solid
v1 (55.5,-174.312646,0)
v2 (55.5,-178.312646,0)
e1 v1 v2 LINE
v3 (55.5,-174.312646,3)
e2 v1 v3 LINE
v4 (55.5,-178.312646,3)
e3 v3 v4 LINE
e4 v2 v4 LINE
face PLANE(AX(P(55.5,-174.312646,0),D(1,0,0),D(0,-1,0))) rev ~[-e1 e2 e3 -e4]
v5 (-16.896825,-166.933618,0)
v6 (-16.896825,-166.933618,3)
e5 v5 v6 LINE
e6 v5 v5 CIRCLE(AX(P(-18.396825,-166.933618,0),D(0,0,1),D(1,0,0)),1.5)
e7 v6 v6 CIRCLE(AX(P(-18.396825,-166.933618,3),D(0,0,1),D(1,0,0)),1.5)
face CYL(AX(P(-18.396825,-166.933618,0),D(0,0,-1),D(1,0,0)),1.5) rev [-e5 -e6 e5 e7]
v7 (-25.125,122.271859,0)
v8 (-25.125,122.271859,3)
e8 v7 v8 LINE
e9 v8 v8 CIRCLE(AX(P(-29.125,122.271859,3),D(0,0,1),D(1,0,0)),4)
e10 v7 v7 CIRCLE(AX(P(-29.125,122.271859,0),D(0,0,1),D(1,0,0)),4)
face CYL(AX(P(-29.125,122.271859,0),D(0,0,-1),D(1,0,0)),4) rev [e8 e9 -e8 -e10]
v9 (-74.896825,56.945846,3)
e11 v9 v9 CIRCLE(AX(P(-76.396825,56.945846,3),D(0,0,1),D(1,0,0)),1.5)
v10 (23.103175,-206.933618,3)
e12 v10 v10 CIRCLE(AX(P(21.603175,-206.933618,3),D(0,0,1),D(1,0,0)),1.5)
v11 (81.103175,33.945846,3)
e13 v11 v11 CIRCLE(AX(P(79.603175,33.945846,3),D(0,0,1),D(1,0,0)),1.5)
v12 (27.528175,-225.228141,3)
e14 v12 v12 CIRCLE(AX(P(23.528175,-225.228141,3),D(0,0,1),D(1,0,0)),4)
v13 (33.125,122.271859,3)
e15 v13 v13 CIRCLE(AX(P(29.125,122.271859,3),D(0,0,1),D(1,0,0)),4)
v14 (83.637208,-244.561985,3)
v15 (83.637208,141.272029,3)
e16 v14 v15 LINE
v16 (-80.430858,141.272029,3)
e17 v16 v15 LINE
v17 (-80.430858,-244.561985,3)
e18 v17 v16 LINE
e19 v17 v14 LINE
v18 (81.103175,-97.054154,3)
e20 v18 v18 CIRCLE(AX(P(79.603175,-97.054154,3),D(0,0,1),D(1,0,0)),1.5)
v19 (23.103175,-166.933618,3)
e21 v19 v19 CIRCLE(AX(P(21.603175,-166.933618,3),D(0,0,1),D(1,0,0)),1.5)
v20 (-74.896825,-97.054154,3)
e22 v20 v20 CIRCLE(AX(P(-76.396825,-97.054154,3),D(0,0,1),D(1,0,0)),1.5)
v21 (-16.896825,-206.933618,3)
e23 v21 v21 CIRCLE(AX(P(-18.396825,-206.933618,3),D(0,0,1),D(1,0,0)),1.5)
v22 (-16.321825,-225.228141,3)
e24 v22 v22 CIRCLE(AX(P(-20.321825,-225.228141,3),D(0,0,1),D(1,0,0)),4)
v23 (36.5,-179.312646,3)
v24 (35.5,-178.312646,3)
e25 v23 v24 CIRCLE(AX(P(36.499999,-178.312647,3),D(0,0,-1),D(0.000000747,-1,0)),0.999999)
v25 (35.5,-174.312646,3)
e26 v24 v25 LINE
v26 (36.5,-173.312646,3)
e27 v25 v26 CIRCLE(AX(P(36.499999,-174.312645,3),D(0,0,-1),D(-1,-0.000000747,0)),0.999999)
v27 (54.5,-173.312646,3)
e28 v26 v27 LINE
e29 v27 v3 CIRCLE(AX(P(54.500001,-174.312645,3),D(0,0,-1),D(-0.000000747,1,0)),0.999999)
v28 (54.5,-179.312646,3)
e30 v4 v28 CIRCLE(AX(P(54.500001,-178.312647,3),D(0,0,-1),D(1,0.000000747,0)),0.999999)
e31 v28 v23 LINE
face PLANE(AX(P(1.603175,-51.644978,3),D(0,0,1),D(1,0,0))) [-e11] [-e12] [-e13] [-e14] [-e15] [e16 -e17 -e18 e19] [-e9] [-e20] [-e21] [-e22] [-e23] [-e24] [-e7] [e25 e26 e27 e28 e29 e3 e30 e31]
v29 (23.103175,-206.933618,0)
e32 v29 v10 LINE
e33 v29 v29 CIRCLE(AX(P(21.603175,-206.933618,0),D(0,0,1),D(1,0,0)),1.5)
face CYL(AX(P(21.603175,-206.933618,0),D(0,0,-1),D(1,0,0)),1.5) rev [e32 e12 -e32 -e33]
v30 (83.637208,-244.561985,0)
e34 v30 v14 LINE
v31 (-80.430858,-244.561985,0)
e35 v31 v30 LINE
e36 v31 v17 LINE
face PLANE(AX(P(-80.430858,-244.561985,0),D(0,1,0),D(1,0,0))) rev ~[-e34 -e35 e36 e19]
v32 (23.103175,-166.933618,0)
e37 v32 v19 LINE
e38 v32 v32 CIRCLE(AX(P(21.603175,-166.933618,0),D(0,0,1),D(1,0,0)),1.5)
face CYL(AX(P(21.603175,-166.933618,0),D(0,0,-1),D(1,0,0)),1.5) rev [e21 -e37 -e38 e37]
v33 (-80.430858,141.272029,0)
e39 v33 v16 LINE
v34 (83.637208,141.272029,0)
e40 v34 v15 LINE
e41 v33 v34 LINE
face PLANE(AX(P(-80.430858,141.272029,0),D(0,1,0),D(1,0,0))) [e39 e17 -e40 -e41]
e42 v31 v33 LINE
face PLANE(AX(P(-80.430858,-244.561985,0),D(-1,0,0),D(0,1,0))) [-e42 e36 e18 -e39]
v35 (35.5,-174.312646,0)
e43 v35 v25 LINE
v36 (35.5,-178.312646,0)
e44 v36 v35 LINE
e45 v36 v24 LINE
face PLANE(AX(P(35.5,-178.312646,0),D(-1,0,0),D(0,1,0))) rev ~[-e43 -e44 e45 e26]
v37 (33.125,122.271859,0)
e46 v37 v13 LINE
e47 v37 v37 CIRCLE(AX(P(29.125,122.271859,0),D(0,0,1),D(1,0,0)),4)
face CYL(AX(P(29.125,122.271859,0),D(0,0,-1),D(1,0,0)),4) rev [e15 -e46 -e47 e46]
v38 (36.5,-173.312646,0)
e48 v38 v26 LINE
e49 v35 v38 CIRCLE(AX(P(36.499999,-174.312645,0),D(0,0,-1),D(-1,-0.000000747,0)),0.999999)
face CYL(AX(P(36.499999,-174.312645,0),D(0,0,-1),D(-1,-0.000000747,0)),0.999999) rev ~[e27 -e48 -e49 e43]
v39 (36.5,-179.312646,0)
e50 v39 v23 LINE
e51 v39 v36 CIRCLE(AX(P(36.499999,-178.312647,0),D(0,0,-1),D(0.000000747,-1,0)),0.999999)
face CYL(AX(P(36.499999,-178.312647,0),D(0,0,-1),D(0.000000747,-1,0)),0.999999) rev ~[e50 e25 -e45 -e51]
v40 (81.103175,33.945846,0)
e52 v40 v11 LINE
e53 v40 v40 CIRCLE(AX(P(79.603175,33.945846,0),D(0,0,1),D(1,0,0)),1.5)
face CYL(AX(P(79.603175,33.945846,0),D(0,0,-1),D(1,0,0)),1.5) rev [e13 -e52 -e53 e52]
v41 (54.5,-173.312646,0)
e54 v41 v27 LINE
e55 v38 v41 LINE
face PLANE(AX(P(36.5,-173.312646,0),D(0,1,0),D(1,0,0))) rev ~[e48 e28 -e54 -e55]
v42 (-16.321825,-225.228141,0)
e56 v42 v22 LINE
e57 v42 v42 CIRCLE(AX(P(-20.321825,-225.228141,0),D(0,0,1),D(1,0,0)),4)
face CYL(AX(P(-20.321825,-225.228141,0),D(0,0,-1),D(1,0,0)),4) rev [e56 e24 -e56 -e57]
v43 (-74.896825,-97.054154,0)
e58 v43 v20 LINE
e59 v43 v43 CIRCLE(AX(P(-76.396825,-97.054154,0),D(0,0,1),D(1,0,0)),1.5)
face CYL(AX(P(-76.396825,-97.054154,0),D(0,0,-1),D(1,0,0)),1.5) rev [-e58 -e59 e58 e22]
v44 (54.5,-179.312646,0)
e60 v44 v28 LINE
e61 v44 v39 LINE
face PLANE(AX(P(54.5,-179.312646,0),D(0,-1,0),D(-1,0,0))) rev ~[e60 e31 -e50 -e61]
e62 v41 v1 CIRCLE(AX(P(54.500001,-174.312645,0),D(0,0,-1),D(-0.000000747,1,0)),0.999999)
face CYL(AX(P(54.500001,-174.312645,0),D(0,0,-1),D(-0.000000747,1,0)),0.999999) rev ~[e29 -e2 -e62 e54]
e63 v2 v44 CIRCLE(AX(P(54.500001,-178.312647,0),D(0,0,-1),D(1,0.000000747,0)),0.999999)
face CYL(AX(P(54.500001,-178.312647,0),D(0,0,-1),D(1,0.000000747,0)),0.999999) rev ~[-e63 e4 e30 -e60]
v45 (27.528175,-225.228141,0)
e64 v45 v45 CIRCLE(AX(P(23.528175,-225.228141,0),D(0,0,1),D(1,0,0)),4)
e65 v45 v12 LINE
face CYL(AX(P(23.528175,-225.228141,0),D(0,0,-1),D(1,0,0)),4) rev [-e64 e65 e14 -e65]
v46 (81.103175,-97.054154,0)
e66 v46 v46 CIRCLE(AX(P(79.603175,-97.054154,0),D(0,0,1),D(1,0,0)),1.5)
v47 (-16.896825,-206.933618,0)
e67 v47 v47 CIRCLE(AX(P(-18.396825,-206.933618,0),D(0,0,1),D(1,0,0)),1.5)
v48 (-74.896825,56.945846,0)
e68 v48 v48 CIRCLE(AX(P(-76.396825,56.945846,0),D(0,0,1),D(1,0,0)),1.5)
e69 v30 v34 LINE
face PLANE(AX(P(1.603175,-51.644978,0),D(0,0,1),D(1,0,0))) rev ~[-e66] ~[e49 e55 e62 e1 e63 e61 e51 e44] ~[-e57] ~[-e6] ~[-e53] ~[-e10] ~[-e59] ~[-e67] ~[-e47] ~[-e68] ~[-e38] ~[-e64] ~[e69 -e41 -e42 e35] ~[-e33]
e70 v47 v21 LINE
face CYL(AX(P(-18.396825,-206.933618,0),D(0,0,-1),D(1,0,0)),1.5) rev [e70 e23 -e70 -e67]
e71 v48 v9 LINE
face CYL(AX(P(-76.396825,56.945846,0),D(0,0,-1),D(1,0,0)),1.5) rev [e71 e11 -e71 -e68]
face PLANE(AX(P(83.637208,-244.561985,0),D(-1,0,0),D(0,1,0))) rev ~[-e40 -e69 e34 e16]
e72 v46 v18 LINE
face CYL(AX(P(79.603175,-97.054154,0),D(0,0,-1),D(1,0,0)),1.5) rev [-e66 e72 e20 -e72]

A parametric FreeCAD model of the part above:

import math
import FreeCAD as App
import Part
import Sketcher
Q = App.Units.Quantity

doc = App.newDocument("Part")
body = doc.addObject("PartDesign::Body", "Body")

# Sketch on XY plane
sketch1 = doc.addObject("Sketcher::SketchObject", "Sketch")
body.addObject(sketch1)
sketch1.AttachmentSupport = (doc.XY_Plane, [""])
sketch1.MapMode = "FlatFace"
sketch1.addGeometry([
    Part.LineSegment(App.Vector(-80.4, 141.3, 0), App.Vector(-80.4, -244.6, 0)),  # 0
    Part.LineSegment(App.Vector(-80.4, -244.6, 0), App.Vector(83.6, -244.6, 0)),  # 1
    Part.LineSegment(App.Vector(83.6, -244.6, 0), App.Vector(83.6, 141.3, 0)),  # 2
    Part.LineSegment(App.Vector(83.6, 141.3, 0), App.Vector(-80.4, 141.3, 0)),  # 3
    Part.Circle(App.Vector(-20.3, -225.2, 0), App.Vector(0, 0, 1), 4),  # 4
    Part.Circle(App.Vector(-18.4, -206.9, 0), App.Vector(0, 0, 1), 1.5),  # 5
    Part.Circle(App.Vector(-18.4, -166.9, 0), App.Vector(0, 0, 1), 1.5),  # 6
    Part.Circle(App.Vector(-76.4, -97.1, 0), App.Vector(0, 0, 1), 1.5),  # 7
    Part.Circle(App.Vector(23.5, -225.2, 0), App.Vector(0, 0, 1), 4),  # 8
    Part.Circle(App.Vector(21.6, -206.9, 0), App.Vector(0, 0, 1), 1.5),  # 9
    Part.Circle(App.Vector(21.6, -166.9, 0), App.Vector(0, 0, 1), 1.5),  # 10
    Part.ArcOfCircle(Part.Circle(App.Vector(36.5, -174.3, 0), App.Vector(0, 0, 1), 1), math.radians(90), math.radians(180)),  # 11
    Part.LineSegment(App.Vector(36.5, -173.3, 0), App.Vector(54.5, -173.3, 0)),  # 12
    Part.ArcOfCircle(Part.Circle(App.Vector(54.5, -174.3, 0), App.Vector(0, 0, 1), 1), math.radians(0), math.radians(90)),  # 13
    Part.LineSegment(App.Vector(55.5, -174.3, 0), App.Vector(55.5, -178.3, 0)),  # 14
    Part.ArcOfCircle(Part.Circle(App.Vector(54.5, -178.3, 0), App.Vector(0, 0, 1), 1), math.radians(-90), math.radians(0)),  # 15
    Part.LineSegment(App.Vector(54.5, -179.3, 0), App.Vector(36.5, -179.3, 0)),  # 16
    Part.ArcOfCircle(Part.Circle(App.Vector(36.5, -178.3, 0), App.Vector(0, 0, 1), 1), math.radians(180), math.radians(270)),  # 17
    Part.LineSegment(App.Vector(35.5, -178.3, 0), App.Vector(35.5, -174.3, 0)),  # 18
    Part.Circle(App.Vector(79.6, -97.1, 0), App.Vector(0, 0, 1), 1.5),  # 19
    Part.Circle(App.Vector(-76.4, 56.9, 0), App.Vector(0, 0, 1), 1.5),  # 20
    Part.Circle(App.Vector(-29.1, 122.3, 0), App.Vector(0, 0, 1), 4),  # 21
    Part.Circle(App.Vector(79.6, 33.9, 0), App.Vector(0, 0, 1), 1.5),  # 22
    Part.Circle(App.Vector(29.1, 122.3, 0), App.Vector(0, 0, 1), 4),  # 23
], False)
sketch1.addConstraint([
    Sketcher.Constraint("Coincident", 0, 2, 1, 1),
    Sketcher.Constraint("Coincident", 1, 2, 2, 1),
    Sketcher.Constraint("Coincident", 2, 2, 3, 1),
    Sketcher.Constraint("Coincident", 3, 2, 0, 1),
    Sketcher.Constraint("Tangent", 11, 1, 12, 1),
    Sketcher.Constraint("Tangent", 12, 2, 13, 2),
    Sketcher.Constraint("Tangent", 13, 1, 14, 1),
    Sketcher.Constraint("Tangent", 14, 2, 15, 2),
    Sketcher.Constraint("Tangent", 15, 1, 16, 1),
    Sketcher.Constraint("Tangent", 16, 2, 17, 2),
    Sketcher.Constraint("Tangent", 17, 1, 18, 1),
    Sketcher.Constraint("Tangent", 18, 2, 11, 2),
    Sketcher.Constraint("Vertical", 0),
    Sketcher.Constraint("Horizontal", 1),
    Sketcher.Constraint("Vertical", 2),
    Sketcher.Constraint("Horizontal", 3),
    Sketcher.Constraint("Horizontal", 12),
    Sketcher.Constraint("Vertical", 14),
    Sketcher.Constraint("Horizontal", 16),
    Sketcher.Constraint("Vertical", 18),
    Sketcher.Constraint("Equal", 5, 6),
    Sketcher.Constraint("Equal", 6, 7),
    Sketcher.Constraint("Equal", 4, 8),
    Sketcher.Constraint("Equal", 7, 9),
    Sketcher.Constraint("Equal", 9, 10),
    Sketcher.Constraint("Equal", 11, 13),
    Sketcher.Constraint("Equal", 13, 15),
    Sketcher.Constraint("Equal", 15, 17),
    Sketcher.Constraint("Equal", 10, 19),
    Sketcher.Constraint("Equal", 19, 20),
    Sketcher.Constraint("Equal", 8, 21),
    Sketcher.Constraint("Equal", 20, 22),
    Sketcher.Constraint("Equal", 21, 23),
    Sketcher.Constraint("Symmetric", 21, 3, 23, 3, -2),
    Sketcher.Constraint("Horizontal", 4, 3, 8, 3),
    Sketcher.Constraint("Horizontal", 5, 3, 9, 3),
    Sketcher.Constraint("Horizontal", 6, 3, 10, 3),
    Sketcher.Constraint("Horizontal", 7, 3, 19, 3),
    Sketcher.Constraint("Vertical", 5, 3, 6, 3),
    Sketcher.Constraint("Vertical", 9, 3, 10, 3),
    Sketcher.Constraint("Vertical", 7, 3, 20, 3),
    Sketcher.Constraint("Vertical", 19, 3, 22, 3),
    Sketcher.Constraint("Diameter", 4, Q("8 mm")),
    Sketcher.Constraint("Diameter", 5, Q("3 mm")),
    Sketcher.Constraint("Radius", 11, Q("0.999999 mm")),
    Sketcher.Constraint("DistanceX", 12, 1, 12, 2, Q("18 mm")),
    Sketcher.Constraint("DistanceY", 14, 2, 14, 1, Q("4 mm")),
    Sketcher.Constraint("DistanceY", 5, 3, 6, 3, Q("40 mm")),
    Sketcher.Constraint("DistanceX", 7, 3, 6, 3, Q("58 mm")),
    Sketcher.Constraint("DistanceX", 5, 3, 9, 3, Q("40 mm")),
    Sketcher.Constraint("DistanceX", 10, 3, 19, 3, Q("58 mm")),
    Sketcher.Constraint("DistanceY", 7, 3, 20, 3, Q("154 mm")),
    Sketcher.Constraint("DistanceY", 19, 3, 22, 3, Q("131 mm")),
    Sketcher.Constraint("DistanceX", -1, 1, 11, 3, Q("36.499999 mm")),
    Sketcher.Constraint("DistanceX", 4, 3, 8, 3, Q("43.85 mm")),
    Sketcher.Constraint("DistanceX", 21, 3, 23, 3, Q("58.25 mm")),
    Sketcher.Constraint("DistanceX", 4, 3, 5, 3, Q("1.925 mm")),
    Sketcher.Constraint("DistanceX", 1, 1, 1, 2, Q("164.068065 mm")),
    Sketcher.Constraint("DistanceY", 0, 2, 0, 1, Q("385.834014 mm")),
    Sketcher.Constraint("DistanceY", 4, 3, -1, 1, Q("225.228141 mm")),
    Sketcher.Constraint("DistanceY", 5, 3, -1, 1, Q("206.933618 mm")),
    Sketcher.Constraint("DistanceY", -1, 1, 21, 3, Q("122.271859 mm")),
    Sketcher.Constraint("DistanceY", -1, 1, 2, 2, Q("141.272029 mm")),
    Sketcher.Constraint("DistanceY", 15, 3, 10, 3, Q("11.379029 mm")),
    Sketcher.Constraint("DistanceY", 13, 3, 19, 3, Q("77.258491 mm")),
    Sketcher.Constraint("DistanceX", 17, 3, 1, 2, Q("47.137208 mm")),
    Sketcher.Constraint("DistanceX", 4, 3, -1, 1, Q("20.321825 mm")),
])
pad1 = doc.addObject("PartDesign::Pad", "Pad")
body.addObject(pad1)
pad1.Profile = sketch1
pad1.Length = 3

doc.recompute()
